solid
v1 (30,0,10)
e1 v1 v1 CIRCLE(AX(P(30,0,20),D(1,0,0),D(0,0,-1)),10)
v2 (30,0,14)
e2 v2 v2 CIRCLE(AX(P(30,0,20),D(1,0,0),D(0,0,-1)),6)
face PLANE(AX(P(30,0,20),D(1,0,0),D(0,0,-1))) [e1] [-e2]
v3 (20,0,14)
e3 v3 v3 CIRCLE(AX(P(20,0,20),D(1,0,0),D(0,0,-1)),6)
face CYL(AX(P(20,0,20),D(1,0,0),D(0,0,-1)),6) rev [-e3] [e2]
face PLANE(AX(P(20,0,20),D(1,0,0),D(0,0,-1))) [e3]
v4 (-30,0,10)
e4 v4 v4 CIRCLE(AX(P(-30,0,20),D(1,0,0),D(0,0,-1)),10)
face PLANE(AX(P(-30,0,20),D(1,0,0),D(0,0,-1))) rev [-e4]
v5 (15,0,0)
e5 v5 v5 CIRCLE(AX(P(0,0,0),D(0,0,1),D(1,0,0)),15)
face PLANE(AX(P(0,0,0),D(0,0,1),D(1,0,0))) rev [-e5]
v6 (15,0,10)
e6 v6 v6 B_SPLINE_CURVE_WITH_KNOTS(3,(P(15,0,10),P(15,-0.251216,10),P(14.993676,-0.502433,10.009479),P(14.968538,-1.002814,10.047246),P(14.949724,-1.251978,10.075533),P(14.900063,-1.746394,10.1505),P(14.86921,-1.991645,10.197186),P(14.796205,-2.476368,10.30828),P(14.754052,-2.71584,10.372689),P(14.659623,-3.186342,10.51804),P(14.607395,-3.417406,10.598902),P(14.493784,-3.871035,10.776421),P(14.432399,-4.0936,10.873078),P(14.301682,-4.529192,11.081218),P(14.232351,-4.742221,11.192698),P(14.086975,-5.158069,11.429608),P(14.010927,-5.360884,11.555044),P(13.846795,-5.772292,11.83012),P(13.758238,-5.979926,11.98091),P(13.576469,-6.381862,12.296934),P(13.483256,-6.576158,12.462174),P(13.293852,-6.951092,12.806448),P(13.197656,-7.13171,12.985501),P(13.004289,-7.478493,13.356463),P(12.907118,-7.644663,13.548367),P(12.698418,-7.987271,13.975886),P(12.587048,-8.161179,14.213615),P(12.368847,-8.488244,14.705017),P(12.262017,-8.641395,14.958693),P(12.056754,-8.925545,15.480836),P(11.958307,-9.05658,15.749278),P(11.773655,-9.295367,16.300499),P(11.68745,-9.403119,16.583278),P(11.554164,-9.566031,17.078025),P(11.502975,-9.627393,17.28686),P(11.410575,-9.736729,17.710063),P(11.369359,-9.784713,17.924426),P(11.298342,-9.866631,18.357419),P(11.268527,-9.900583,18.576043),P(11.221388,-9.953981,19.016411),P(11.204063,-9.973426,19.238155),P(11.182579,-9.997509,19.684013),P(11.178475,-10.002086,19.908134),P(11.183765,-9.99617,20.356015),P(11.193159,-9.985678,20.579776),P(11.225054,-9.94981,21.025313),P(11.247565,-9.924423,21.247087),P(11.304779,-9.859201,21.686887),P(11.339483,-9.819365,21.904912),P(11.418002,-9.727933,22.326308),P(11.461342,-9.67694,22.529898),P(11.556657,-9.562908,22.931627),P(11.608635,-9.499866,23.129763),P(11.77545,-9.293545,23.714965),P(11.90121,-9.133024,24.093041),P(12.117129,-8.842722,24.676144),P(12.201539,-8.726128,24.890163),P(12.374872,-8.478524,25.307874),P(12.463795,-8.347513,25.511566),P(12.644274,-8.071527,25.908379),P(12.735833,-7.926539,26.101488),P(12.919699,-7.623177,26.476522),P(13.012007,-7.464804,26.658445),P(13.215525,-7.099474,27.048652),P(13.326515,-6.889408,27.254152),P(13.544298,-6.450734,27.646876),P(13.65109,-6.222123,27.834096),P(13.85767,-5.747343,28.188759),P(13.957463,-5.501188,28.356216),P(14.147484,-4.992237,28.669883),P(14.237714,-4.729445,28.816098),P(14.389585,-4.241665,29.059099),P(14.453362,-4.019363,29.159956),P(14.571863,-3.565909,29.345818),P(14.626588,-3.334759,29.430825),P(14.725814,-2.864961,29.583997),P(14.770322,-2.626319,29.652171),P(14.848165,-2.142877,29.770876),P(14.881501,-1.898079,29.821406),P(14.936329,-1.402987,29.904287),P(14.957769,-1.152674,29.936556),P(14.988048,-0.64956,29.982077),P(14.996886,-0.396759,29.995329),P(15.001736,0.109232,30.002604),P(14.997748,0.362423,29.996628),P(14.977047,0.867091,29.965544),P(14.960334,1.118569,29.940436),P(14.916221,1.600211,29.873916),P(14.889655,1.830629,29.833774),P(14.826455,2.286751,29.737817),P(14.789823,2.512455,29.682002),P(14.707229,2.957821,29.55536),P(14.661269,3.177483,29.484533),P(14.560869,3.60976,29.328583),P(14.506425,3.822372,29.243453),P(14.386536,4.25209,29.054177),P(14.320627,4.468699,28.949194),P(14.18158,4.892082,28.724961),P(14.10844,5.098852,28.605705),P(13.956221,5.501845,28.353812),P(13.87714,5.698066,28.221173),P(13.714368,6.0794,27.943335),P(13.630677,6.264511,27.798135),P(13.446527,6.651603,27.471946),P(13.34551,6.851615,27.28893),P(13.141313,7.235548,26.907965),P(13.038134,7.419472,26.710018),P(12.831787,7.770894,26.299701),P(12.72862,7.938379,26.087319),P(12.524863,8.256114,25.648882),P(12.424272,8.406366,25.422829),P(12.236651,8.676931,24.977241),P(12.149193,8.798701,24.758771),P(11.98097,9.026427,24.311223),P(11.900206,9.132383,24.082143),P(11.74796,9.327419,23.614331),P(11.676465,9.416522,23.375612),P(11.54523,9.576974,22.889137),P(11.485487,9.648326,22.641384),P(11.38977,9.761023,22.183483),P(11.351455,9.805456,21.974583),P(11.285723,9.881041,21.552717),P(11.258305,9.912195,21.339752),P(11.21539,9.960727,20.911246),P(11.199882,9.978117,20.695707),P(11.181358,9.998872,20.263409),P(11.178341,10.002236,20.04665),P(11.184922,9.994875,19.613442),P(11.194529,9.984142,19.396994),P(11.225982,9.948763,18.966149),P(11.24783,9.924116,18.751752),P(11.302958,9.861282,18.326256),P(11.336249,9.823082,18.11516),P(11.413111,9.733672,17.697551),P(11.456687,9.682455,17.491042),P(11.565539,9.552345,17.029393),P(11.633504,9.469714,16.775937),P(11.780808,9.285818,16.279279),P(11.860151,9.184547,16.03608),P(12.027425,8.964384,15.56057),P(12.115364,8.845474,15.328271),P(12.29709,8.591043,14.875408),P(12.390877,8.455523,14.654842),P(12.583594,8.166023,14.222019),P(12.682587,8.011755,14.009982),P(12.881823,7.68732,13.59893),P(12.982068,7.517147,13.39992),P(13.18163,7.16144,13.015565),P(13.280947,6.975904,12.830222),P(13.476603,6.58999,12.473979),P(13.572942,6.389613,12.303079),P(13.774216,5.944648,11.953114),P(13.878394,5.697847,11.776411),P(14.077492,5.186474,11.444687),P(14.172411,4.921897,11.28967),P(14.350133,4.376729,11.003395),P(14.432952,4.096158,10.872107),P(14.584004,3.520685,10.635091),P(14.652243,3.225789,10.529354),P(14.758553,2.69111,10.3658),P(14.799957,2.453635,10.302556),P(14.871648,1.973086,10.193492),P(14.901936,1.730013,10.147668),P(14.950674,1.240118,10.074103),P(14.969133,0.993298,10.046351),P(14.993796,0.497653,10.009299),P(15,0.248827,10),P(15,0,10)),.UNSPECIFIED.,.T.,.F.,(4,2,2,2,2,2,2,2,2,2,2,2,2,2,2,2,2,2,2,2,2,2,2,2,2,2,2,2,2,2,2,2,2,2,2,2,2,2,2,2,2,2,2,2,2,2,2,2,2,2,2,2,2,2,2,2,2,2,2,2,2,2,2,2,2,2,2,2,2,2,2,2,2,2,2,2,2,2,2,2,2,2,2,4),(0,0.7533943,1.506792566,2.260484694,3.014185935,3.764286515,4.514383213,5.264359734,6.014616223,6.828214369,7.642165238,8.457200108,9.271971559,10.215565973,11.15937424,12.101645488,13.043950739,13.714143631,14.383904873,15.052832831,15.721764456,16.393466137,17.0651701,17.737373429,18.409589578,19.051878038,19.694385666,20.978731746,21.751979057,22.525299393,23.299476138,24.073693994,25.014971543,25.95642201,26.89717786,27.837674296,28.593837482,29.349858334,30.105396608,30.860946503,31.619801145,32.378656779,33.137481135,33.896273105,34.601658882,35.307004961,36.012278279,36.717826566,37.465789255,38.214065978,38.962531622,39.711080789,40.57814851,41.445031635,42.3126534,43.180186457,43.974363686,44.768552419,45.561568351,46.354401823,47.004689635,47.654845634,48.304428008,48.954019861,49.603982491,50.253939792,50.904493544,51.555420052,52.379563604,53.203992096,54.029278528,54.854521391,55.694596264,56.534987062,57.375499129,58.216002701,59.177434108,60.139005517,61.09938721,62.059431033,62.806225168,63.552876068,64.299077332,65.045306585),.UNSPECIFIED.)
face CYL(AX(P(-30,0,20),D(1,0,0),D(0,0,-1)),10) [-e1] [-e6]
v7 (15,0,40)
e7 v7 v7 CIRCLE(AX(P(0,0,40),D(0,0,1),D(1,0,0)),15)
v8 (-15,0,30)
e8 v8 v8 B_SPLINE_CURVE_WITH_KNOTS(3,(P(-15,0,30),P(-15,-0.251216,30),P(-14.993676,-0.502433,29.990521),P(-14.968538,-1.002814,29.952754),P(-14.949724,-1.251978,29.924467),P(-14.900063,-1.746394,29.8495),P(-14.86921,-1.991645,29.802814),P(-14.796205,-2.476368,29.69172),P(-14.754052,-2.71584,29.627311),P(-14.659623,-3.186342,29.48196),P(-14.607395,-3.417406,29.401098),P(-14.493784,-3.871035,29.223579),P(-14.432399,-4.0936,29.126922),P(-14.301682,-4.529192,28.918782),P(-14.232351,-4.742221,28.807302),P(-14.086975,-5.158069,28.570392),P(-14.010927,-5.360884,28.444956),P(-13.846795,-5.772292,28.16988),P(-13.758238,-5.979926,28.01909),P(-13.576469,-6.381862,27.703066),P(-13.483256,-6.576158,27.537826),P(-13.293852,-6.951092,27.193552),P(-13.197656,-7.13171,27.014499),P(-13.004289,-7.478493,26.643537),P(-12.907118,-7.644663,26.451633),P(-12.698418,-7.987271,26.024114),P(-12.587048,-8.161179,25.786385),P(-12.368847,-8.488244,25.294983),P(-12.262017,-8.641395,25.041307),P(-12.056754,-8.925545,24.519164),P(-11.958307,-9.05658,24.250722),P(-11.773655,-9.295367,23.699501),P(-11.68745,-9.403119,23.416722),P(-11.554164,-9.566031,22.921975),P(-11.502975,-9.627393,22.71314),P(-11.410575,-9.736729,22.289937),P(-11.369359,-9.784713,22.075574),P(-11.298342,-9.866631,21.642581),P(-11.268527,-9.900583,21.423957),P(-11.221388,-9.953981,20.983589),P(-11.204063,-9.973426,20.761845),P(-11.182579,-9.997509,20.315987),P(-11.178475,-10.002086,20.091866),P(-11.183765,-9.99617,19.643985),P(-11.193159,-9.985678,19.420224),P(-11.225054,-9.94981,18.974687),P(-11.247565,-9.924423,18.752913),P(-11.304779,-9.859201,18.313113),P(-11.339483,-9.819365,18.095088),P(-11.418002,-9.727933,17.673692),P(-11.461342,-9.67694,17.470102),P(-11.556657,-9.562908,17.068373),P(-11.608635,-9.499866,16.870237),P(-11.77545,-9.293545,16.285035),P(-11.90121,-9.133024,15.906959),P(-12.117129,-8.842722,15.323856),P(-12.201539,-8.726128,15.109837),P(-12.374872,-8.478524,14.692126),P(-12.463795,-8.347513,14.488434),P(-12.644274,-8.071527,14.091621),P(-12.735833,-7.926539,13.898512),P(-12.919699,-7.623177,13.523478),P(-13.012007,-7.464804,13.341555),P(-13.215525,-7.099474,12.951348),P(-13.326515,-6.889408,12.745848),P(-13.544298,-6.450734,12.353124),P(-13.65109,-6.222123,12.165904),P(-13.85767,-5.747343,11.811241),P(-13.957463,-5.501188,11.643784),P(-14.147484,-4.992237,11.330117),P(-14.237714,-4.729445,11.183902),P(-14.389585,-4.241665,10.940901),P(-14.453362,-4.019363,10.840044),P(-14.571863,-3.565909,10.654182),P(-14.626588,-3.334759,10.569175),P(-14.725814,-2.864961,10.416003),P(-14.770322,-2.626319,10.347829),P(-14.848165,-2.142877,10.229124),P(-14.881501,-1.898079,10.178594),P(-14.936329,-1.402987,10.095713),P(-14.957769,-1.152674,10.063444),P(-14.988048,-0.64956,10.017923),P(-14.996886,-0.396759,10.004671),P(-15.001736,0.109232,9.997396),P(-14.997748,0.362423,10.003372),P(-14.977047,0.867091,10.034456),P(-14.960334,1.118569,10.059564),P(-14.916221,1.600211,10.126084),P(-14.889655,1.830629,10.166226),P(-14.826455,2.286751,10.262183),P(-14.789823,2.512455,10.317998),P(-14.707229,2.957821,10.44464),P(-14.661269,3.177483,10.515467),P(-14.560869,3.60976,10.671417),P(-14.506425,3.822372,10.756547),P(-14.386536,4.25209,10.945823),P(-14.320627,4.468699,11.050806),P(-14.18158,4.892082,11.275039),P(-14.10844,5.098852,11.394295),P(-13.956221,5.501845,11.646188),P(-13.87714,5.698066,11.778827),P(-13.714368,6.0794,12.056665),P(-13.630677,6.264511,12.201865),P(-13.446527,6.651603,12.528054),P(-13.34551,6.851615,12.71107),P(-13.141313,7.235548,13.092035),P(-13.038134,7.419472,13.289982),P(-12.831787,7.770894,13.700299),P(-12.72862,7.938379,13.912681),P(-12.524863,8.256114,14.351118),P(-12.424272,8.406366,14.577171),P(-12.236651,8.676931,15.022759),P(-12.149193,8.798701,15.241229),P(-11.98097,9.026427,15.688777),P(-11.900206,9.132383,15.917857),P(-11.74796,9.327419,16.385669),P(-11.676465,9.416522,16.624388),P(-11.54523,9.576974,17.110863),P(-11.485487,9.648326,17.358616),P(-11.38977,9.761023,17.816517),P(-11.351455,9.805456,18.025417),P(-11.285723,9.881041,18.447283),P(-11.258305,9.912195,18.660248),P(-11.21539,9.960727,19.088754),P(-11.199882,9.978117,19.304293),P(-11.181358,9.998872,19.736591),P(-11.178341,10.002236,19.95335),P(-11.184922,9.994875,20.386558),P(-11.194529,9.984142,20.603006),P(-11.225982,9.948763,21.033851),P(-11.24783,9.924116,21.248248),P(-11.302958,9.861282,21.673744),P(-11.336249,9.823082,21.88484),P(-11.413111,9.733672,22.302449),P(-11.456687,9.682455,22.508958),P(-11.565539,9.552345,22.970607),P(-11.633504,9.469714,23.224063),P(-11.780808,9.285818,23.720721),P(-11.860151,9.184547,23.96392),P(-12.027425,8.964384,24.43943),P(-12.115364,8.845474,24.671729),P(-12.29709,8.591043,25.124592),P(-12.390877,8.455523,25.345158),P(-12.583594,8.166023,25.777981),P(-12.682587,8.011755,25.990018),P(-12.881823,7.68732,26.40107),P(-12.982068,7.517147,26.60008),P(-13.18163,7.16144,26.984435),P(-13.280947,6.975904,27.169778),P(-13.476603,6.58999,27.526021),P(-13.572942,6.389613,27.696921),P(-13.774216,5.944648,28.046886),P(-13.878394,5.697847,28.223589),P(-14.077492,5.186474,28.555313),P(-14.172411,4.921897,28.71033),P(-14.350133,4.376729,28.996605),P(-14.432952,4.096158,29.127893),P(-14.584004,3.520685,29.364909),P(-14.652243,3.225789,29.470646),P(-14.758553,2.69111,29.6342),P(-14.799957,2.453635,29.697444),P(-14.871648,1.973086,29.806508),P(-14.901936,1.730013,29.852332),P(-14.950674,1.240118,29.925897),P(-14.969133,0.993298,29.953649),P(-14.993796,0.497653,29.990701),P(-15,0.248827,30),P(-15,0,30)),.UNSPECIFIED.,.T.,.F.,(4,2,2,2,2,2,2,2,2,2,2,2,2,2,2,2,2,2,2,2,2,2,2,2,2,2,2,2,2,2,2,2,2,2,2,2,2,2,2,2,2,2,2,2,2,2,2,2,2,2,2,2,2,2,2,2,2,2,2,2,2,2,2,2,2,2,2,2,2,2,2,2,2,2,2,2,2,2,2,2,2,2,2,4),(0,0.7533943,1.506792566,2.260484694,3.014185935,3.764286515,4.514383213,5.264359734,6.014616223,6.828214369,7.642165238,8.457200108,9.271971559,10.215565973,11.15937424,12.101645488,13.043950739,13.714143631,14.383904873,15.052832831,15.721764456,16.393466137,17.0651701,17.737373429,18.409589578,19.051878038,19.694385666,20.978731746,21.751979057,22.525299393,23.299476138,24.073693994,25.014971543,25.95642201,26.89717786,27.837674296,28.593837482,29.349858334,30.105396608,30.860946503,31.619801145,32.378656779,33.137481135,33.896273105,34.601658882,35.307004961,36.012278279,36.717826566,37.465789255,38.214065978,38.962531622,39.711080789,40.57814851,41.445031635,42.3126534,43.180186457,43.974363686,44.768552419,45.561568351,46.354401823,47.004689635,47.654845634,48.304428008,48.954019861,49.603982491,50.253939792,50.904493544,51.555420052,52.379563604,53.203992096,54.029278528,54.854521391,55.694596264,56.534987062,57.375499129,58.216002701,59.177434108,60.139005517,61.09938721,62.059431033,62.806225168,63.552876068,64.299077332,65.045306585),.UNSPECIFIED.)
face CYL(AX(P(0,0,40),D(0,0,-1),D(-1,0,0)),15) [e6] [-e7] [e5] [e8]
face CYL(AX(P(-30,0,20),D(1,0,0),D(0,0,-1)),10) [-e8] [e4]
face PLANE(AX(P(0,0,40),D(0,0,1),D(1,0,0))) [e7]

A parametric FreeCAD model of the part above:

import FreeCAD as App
import Part
import Sketcher

doc = App.newDocument("Part")
params = doc.addObject("Spreadsheet::Sheet", "Params")
for row, (alias, value) in enumerate([
    ("sketch1_diameter", "30 mm"),
    ("pad1_length", "40 mm"),
    ("sketch2_diameter", "20 mm"),
    ("pad2_length", "30 mm"),
    ("pad2_length2", "30 mm"),
    ("sketch3_diameter", "20 mm"),
    ("sketch3_diameter2", "12 mm"),
    ("sketch3_width", "47.62 mm"),
    ("sketch3_height", "57.62 mm"),
    ("pocket1_length", "10 mm"),
], start=1):
    params.set(f"A{row}", alias)
    params.set(f"B{row}", "=" + value)
    params.setAlias(f"B{row}", alias)

body = doc.addObject("PartDesign::Body", "Body")

# Sketch on XY plane
sketch1 = body.newObject("Sketcher::SketchObject", "Sketch")
sketch1.AttachmentSupport = (doc.getObject("XY_Plane"), [""])
sketch1.MapMode = "FlatFace"
sketch1.addGeometry(Part.Circle(App.Vector(0, 0, 0), App.Vector(0, 0, 1), 15), False)
sketch1.addConstraint([
    Sketcher.Constraint("Coincident", 0, 3, -1, 1),
    Sketcher.Constraint("Diameter", 0, 30.0),
])
sketch1.setExpression("Constraints[1]", "Params.sketch1_diameter")
pad1 = body.newObject("PartDesign::Pad", "Pad")
pad1.Profile = sketch1
pad1.setExpression("Length", "Params.pad1_length")

# Sketch on YZ plane
sketch2 = body.newObject("Sketcher::SketchObject", "Sketch001")
sketch2.AttachmentSupport = (doc.getObject("YZ_Plane"), [""])
sketch2.MapMode = "FlatFace"
sketch2.addGeometry(Part.Circle(App.Vector(0, 20, 0), App.Vector(0, 0, 1), 10), False)
sketch2.addConstraint([
    Sketcher.Constraint("PointOnObject", 0, 3, -2),
    Sketcher.Constraint("Diameter", 0, 20.0),
    Sketcher.Constraint("DistanceY", -1, 1, 0, 3, 20.0),
])
sketch2.setExpression("Constraints[1]", "Params.sketch2_diameter")
pad2 = body.newObject("PartDesign::Pad", "Pad001")
pad2.Profile = sketch2
pad2.Type = "TwoLengths"
pad2.setExpression("Length", "Params.pad2_length")
pad2.setExpression("Length2", "Params.pad2_length2")

# Sketch on YZ plane
sketch3 = body.newObject("Sketcher::SketchObject", "Sketch002")
sketch3.AttachmentSupport = (doc.getObject("YZ_Plane"), [""])
sketch3.MapMode = "FlatFace"
sketch3.AttachmentOffset = App.Placement(App.Vector(0, 0, 30), App.Rotation())
sketch3.addGeometry([
    Part.LineSegment(App.Vector(24, 49, 0), App.Vector(-24, 49, 0)),  # 0
    Part.LineSegment(App.Vector(-24, 49, 0), App.Vector(-24, -9, 0)),  # 1
    Part.LineSegment(App.Vector(-24, -9, 0), App.Vector(24, -9, 0)),  # 2
    Part.LineSegment(App.Vector(24, -9, 0), App.Vector(24, 49, 0)),  # 3
    Part.Circle(App.Vector(0, 20, 0), App.Vector(0, 0, 1), 10),  # 4
    Part.Circle(App.Vector(0, 20, 0), App.Vector(0, 0, 1), 6),  # 5
], False)
sketch3.addConstraint([
    Sketcher.Constraint("Coincident", 0, 2, 1, 1),
    Sketcher.Constraint("Coincident", 1, 2, 2, 1),
    Sketcher.Constraint("Coincident", 2, 2, 3, 1),
    Sketcher.Constraint("Coincident", 3, 2, 0, 1),
    Sketcher.Constraint("Horizontal", 0),
    Sketcher.Constraint("Vertical", 1),
    Sketcher.Constraint("Horizontal", 2),
    Sketcher.Constraint("Vertical", 3),
    Sketcher.Constraint("Coincident", 5, 3, 4, 3),
    Sketcher.Constraint("PointOnObject", 4, 3, -2),
    Sketcher.Constraint("Diameter", 4, 20.0),
    Sketcher.Constraint("Diameter", 5, 12.0),
    Sketcher.Constraint("DistanceY", -1, 1, 4, 3, 20.0),
    Sketcher.Constraint("DistanceX", 0, 2, 0, 1, 47.62),
    Sketcher.Constraint("DistanceY", 1, 2, 1, 1, 57.62),
    Sketcher.Constraint("DistanceX", 0, 2, -1, 1, 23.81),
    Sketcher.Constraint("DistanceY", -1, 1, 0, 2, 48.81),
])
sketch3.setExpression("Constraints[10]", "Params.sketch3_diameter")
sketch3.setExpression("Constraints[11]", "Params.sketch3_diameter2")
sketch3.setExpression("Constraints[13]", "Params.sketch3_width")
sketch3.setExpression("Constraints[14]", "Params.sketch3_height")
pocket1 = body.newObject("PartDesign::Pocket", "Pocket")
pocket1.Profile = sketch3
pocket1.setExpression("Length", "Params.pocket1_length")

doc.recompute()
